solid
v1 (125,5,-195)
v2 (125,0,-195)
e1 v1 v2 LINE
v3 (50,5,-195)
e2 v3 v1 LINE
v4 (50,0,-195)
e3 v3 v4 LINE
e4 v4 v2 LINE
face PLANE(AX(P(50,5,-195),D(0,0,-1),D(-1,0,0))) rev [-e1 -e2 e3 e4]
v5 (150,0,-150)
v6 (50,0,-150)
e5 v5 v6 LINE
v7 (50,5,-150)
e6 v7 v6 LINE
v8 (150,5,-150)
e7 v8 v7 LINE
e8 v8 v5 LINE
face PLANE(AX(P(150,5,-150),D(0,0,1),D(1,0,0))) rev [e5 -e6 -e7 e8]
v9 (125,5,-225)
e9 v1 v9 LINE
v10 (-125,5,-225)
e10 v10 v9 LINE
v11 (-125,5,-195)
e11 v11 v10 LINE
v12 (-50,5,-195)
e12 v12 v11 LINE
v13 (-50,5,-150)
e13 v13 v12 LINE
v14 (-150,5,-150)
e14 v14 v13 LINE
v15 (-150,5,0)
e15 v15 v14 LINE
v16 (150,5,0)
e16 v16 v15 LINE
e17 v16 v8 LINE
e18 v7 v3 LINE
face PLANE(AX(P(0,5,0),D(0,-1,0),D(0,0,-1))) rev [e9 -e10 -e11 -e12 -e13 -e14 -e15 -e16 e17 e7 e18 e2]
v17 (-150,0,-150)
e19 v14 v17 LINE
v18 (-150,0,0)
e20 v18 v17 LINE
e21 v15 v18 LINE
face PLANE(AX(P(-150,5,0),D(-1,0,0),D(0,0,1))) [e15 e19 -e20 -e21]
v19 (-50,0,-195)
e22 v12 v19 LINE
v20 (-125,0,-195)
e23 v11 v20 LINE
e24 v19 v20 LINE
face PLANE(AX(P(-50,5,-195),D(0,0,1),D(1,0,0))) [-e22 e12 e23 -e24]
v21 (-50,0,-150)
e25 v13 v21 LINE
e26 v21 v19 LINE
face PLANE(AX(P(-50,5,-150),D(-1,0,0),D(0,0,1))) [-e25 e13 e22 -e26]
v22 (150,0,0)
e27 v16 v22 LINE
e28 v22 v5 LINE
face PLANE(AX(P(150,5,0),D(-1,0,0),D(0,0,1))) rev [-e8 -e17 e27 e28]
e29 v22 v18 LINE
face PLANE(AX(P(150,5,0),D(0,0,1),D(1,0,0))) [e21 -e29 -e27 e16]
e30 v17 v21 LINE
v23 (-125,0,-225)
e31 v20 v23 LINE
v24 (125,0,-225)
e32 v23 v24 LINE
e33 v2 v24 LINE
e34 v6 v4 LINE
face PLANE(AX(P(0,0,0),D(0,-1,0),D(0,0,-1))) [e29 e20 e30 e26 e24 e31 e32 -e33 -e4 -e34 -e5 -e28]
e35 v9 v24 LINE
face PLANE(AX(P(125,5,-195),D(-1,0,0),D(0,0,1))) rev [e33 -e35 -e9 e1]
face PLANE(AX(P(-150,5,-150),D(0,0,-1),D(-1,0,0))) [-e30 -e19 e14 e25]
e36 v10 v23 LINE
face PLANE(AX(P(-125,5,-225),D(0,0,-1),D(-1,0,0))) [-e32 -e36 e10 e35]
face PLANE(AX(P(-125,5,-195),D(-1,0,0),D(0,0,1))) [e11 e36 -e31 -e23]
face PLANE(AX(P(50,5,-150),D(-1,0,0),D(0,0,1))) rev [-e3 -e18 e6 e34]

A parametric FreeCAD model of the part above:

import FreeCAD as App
import Part
import Sketcher

V = App.Vector
Q = App.Units.Quantity


def add_polygon(sketch, points):
    """Adds a closed chain of lines whose ends are joined by coincident constraints."""
    first, n = sketch.GeometryCount, len(points)
    for a, b in zip(points, points[1:] + points[:1]):
        sketch.addGeometry(Part.LineSegment(App.Vector(*a, 0), App.Vector(*b, 0)), False)
    for i in range(n):
        sketch.addConstraint(Sketcher.Constraint("Coincident", first + i, 2, first + (i + 1) % n, 1))

doc = App.newDocument("Part")
params = doc.addObject("Spreadsheet::Sheet", "Params")
for row, (alias, value) in enumerate([
    ("sketch1_width", "300 mm"),
    ("sketch1_width2", "100 mm"),
    ("sketch1_width3", "75 mm"),
    ("sketch1_height", "150 mm"),
    ("sketch1_height2", "45 mm"),
    ("pad1_length", "5 mm"),
], start=1):
    params.set(f"A{row}", alias)
    params.set(f"B{row}", "=" + value)
    params.setAlias(f"B{row}", alias)

body = doc.addObject("PartDesign::Body", "Body")

sketch1 = doc.addObject("Sketcher::SketchObject", "Sketch")
body.addObject(sketch1)
sketch1.AttachmentSupport = (doc.XZ_Plane, [""])
sketch1.MapMode = "FlatFace"
add_polygon(sketch1, [(-150, 0), (150, 0), (150, -150), (50, -150), (50, -195), (125, -195), (125, -225), (-125, -225), (-125, -195), (-50, -195), (-50, -150), (-150, -150)])
sketch1.addConstraint(Sketcher.Constraint("Horizontal", 0))
sketch1.addConstraint(Sketcher.Constraint("Vertical", 1))
sketch1.addConstraint(Sketcher.Constraint("Horizontal", 2))
sketch1.addConstraint(Sketcher.Constraint("Vertical", 3))
sketch1.addConstraint(Sketcher.Constraint("Horizontal", 4))
sketch1.addConstraint(Sketcher.Constraint("Vertical", 5))
sketch1.addConstraint(Sketcher.Constraint("Horizontal", 6))
sketch1.addConstraint(Sketcher.Constraint("Vertical", 7))
sketch1.addConstraint(Sketcher.Constraint("Horizontal", 8))
sketch1.addConstraint(Sketcher.Constraint("Vertical", 9))
sketch1.addConstraint(Sketcher.Constraint("Horizontal", 10))
sketch1.addConstraint(Sketcher.Constraint("Vertical", 11))
sketch1.addConstraint(Sketcher.Constraint("Symmetric", 0, 2, 11, 2, -1, 1))
sketch1.addConstraint(Sketcher.Constraint("Symmetric", 4, 2, 7, 2, -2))
sketch1.addConstraint(Sketcher.Constraint("Symmetric", 2, 2, 9, 2, -2))
sketch1.addConstraint(Sketcher.Constraint("DistanceX", 0, 1, 0, 2, Q("300 mm")))
sketch1.addConstraint(Sketcher.Constraint("DistanceX", 2, 2, 2, 1, Q("100 mm")))
sketch1.addConstraint(Sketcher.Constraint("DistanceX", 4, 1, 4, 2, Q("75 mm")))
sketch1.addConstraint(Sketcher.Constraint("DistanceY", 1, 2, 1, 1, Q("150 mm")))
sketch1.addConstraint(Sketcher.Constraint("DistanceY", 3, 2, 3, 1, Q("45 mm")))
sketch1.addConstraint(Sketcher.Constraint("DistanceY", 5, 2, 5, 1, Q("30 mm")))
sketch1.setExpression("Constraints[27]", "Params.sketch1_width")
sketch1.setExpression("Constraints[28]", "Params.sketch1_width2")
sketch1.setExpression("Constraints[29]", "Params.sketch1_width3")
sketch1.setExpression("Constraints[30]", "Params.sketch1_height")
sketch1.setExpression("Constraints[31]", "Params.sketch1_height2")
pad1 = doc.addObject("PartDesign::Pad", "Pad")
body.addObject(pad1)
pad1.Profile = sketch1
pad1.setExpression("Length", "Params.pad1_length")
pad1.Reversed = True

doc.recompute()
